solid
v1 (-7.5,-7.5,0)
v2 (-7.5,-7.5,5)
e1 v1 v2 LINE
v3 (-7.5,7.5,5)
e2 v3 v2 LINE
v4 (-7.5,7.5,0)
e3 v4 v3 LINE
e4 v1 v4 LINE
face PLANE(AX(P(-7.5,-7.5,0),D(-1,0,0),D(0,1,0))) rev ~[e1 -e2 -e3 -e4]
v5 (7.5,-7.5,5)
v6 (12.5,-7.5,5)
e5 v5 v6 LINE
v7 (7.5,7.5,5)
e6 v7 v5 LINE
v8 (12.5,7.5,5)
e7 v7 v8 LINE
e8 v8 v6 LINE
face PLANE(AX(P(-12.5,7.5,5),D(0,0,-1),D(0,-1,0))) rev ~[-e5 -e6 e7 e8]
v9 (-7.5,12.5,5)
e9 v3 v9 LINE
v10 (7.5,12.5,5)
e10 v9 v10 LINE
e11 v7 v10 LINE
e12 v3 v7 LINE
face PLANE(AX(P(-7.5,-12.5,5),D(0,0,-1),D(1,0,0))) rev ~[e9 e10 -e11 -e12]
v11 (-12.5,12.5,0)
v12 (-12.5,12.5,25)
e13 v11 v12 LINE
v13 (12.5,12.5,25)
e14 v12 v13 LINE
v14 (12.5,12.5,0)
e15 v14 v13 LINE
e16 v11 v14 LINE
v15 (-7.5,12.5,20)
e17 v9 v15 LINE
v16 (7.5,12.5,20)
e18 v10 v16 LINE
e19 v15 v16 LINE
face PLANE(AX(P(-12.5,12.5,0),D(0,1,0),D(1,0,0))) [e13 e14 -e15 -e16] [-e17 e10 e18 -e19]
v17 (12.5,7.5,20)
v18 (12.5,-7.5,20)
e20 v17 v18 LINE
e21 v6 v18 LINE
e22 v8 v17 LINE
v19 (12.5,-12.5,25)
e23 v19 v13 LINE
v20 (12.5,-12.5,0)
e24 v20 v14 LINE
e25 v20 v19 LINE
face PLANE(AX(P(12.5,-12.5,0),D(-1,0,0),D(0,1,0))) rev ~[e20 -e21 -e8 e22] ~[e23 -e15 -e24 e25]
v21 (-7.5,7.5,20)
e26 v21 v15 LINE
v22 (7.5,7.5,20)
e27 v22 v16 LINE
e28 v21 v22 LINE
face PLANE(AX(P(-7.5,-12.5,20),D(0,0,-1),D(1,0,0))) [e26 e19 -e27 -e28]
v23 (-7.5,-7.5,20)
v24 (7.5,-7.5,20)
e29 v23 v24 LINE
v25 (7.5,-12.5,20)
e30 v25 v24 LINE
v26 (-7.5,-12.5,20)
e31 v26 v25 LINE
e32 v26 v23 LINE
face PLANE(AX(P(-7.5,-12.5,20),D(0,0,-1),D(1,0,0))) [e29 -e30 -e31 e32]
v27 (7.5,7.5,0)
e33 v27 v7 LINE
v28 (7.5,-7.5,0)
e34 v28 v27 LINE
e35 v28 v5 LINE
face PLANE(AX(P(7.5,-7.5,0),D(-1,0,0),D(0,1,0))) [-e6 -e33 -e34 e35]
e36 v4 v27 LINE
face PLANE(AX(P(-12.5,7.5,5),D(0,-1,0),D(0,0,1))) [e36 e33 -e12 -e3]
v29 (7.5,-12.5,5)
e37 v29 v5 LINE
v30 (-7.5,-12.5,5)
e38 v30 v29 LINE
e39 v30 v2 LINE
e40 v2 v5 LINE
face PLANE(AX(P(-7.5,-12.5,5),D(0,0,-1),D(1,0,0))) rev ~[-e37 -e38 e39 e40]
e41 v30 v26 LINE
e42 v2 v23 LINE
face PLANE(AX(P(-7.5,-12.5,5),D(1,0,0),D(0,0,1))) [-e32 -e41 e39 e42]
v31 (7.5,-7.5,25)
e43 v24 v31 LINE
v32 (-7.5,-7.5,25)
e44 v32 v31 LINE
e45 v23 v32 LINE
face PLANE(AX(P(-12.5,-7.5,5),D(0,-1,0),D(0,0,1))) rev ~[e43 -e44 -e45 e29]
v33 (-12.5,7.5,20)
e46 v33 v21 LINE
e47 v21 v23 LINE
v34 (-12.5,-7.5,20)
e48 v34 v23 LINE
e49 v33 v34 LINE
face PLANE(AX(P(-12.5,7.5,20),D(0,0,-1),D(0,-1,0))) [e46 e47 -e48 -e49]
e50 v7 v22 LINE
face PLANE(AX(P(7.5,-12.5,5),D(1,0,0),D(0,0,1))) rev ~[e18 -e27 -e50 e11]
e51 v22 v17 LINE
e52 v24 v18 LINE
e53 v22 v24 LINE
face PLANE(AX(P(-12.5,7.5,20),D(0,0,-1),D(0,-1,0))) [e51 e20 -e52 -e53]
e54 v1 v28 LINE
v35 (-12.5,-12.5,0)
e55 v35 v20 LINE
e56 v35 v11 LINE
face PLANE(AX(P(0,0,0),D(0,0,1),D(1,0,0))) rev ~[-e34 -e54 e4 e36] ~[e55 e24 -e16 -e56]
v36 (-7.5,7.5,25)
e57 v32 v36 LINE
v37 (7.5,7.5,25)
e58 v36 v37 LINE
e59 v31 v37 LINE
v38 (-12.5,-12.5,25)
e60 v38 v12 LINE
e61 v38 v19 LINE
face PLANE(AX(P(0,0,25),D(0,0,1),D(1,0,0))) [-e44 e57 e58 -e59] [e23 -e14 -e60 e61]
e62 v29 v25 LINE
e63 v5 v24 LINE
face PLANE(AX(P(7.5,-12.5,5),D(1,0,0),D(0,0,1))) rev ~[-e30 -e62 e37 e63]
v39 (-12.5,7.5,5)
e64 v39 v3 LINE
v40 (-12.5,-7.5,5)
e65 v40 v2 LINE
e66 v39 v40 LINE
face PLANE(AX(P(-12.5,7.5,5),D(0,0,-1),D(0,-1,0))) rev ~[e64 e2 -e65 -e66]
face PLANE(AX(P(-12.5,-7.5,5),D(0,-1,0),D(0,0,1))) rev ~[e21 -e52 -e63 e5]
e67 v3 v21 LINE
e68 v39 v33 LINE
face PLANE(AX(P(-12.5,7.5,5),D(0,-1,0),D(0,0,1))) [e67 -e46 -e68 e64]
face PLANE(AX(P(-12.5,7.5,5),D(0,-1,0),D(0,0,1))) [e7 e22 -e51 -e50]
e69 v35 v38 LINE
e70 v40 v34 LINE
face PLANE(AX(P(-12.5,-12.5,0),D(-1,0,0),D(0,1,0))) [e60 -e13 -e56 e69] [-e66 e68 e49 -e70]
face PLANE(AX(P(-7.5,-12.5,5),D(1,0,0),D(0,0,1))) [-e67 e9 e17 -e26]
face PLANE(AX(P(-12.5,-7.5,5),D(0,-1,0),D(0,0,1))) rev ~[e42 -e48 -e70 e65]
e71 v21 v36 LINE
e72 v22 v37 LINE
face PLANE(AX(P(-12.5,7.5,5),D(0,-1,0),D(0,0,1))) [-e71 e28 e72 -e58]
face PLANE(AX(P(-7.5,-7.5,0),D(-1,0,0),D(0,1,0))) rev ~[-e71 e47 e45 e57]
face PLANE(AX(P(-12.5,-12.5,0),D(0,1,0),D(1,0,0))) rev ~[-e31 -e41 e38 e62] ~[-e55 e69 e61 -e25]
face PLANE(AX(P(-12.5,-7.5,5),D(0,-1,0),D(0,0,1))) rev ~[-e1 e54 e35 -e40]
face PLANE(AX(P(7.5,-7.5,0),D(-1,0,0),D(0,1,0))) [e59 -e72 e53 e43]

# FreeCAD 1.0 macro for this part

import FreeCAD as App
import Part
import Sketcher

V = App.Vector
Q = App.Units.Quantity


def add_polygon(sketch, points):
    """Adds a closed chain of lines whose ends are joined by coincident constraints."""
    first, n = sketch.GeometryCount, len(points)
    for a, b in zip(points, points[1:] + points[:1]):
        sketch.addGeometry(Part.LineSegment(App.Vector(*a, 0), App.Vector(*b, 0)), False)
    for i in range(n):
        sketch.addConstraint(Sketcher.Constraint("Coincident", first + i, 2, first + (i + 1) % n, 1))

doc = App.newDocument("Part")
body = doc.addObject("PartDesign::Body", "Body")

# Sketch on XY plane
sketch1 = body.newObject("Sketcher::SketchObject", "Sketch")
sketch1.AttachmentSupport = (doc.getObject("XY_Plane"), [""])
sketch1.MapMode = "FlatFace"
add_polygon(sketch1, [(-12.5, 12.5), (-12.5, -12.5), (12.5, -12.5), (12.5, 12.5)])  # lines 0-3
add_polygon(sketch1, [(7.5, -7.5), (-7.5, -7.5), (-7.5, 7.5), (7.5, 7.5)])  # lines 4-7
sketch1.addConstraint([
    Sketcher.Constraint("Vertical", 0),
    Sketcher.Constraint("Horizontal", 1),
    Sketcher.Constraint("Vertical", 2),
    Sketcher.Constraint("Horizontal", 3),
    Sketcher.Constraint("Horizontal", 4),
    Sketcher.Constraint("Vertical", 5),
    Sketcher.Constraint("Horizontal", 6),
    Sketcher.Constraint("Vertical", 7),
    Sketcher.Constraint("Symmetric", 0, 2, 2, 2, -1, 1),
    Sketcher.Constraint("Symmetric", 4, 2, 6, 2, -1, 1),
    Sketcher.Constraint("Equal", 3, 0),
    Sketcher.Constraint("Equal", 6, 5),
    Sketcher.Constraint("DistanceX", 1, 1, 1, 2, Q("25 mm")),
    Sketcher.Constraint("DistanceX", 4, 2, 4, 1, Q("15 mm")),
])
pad1 = body.newObject("PartDesign::Pad", "Pad")
pad1.Profile = sketch1
pad1.Length = 25

# Sketch on YZ plane
sketch2 = body.newObject("Sketcher::SketchObject", "Sketch001")
sketch2.AttachmentSupport = (doc.getObject("YZ_Plane"), [""])
sketch2.MapMode = "FlatFace"
sketch2.AttachmentOffset = App.Placement(V(0, 0, -12.5), App.Rotation())
add_polygon(sketch2, [(7.5, 20), (7.5, 5), (-7.5, 5), (-7.5, 20)])  # lines 0-3
sketch2.addConstraint([
    Sketcher.Constraint("Vertical", 0),
    Sketcher.Constraint("Horizontal", 1),
    Sketcher.Constraint("Vertical", 2),
    Sketcher.Constraint("Horizontal", 3),
    Sketcher.Constraint("Equal", 3, 0),
    Sketcher.Constraint("DistanceX", 1, 2, 1, 1, Q("15 mm")),
    Sketcher.Constraint("DistanceY", -1, 1, 0, 2, Q("5 mm")),
    Sketcher.Constraint("DistanceX", -1, 1, 0, 2, Q("7.5 mm")),
])
pocket1 = body.newObject("PartDesign::Pocket", "Pocket")
pocket1.Profile = sketch2
pocket1.Type = "ThroughAll"
pocket1.Reversed = True

# Sketch on XZ plane
sketch3 = body.newObject("Sketcher::SketchObject", "Sketch002")
sketch3.AttachmentSupport = (doc.getObject("XZ_Plane"), [""])
sketch3.MapMode = "FlatFace"
sketch3.AttachmentOffset = App.Placement(V(0, 0, 12.5), App.Rotation())
add_polygon(sketch3, [(-7.5, 20), (-7.5, 5), (7.5, 5), (7.5, 20)])  # lines 0-3
sketch3.addConstraint([
    Sketcher.Constraint("Vertical", 0),
    Sketcher.Constraint("Horizontal", 1),
    Sketcher.Constraint("Vertical", 2),
    Sketcher.Constraint("Horizontal", 3),
    Sketcher.Constraint("Equal", 3, 0),
    Sketcher.Constraint("DistanceX", 1, 1, 1, 2, Q("15 mm")),
    Sketcher.Constraint("DistanceY", -1, 1, 0, 2, Q("5 mm")),
    Sketcher.Constraint("DistanceX", 0, 2, -1, 1, Q("7.5 mm")),
])
pocket2 = body.newObject("PartDesign::Pocket", "Pocket001")
pocket2.Profile = sketch3
pocket2.Length = 25

doc.recompute()
